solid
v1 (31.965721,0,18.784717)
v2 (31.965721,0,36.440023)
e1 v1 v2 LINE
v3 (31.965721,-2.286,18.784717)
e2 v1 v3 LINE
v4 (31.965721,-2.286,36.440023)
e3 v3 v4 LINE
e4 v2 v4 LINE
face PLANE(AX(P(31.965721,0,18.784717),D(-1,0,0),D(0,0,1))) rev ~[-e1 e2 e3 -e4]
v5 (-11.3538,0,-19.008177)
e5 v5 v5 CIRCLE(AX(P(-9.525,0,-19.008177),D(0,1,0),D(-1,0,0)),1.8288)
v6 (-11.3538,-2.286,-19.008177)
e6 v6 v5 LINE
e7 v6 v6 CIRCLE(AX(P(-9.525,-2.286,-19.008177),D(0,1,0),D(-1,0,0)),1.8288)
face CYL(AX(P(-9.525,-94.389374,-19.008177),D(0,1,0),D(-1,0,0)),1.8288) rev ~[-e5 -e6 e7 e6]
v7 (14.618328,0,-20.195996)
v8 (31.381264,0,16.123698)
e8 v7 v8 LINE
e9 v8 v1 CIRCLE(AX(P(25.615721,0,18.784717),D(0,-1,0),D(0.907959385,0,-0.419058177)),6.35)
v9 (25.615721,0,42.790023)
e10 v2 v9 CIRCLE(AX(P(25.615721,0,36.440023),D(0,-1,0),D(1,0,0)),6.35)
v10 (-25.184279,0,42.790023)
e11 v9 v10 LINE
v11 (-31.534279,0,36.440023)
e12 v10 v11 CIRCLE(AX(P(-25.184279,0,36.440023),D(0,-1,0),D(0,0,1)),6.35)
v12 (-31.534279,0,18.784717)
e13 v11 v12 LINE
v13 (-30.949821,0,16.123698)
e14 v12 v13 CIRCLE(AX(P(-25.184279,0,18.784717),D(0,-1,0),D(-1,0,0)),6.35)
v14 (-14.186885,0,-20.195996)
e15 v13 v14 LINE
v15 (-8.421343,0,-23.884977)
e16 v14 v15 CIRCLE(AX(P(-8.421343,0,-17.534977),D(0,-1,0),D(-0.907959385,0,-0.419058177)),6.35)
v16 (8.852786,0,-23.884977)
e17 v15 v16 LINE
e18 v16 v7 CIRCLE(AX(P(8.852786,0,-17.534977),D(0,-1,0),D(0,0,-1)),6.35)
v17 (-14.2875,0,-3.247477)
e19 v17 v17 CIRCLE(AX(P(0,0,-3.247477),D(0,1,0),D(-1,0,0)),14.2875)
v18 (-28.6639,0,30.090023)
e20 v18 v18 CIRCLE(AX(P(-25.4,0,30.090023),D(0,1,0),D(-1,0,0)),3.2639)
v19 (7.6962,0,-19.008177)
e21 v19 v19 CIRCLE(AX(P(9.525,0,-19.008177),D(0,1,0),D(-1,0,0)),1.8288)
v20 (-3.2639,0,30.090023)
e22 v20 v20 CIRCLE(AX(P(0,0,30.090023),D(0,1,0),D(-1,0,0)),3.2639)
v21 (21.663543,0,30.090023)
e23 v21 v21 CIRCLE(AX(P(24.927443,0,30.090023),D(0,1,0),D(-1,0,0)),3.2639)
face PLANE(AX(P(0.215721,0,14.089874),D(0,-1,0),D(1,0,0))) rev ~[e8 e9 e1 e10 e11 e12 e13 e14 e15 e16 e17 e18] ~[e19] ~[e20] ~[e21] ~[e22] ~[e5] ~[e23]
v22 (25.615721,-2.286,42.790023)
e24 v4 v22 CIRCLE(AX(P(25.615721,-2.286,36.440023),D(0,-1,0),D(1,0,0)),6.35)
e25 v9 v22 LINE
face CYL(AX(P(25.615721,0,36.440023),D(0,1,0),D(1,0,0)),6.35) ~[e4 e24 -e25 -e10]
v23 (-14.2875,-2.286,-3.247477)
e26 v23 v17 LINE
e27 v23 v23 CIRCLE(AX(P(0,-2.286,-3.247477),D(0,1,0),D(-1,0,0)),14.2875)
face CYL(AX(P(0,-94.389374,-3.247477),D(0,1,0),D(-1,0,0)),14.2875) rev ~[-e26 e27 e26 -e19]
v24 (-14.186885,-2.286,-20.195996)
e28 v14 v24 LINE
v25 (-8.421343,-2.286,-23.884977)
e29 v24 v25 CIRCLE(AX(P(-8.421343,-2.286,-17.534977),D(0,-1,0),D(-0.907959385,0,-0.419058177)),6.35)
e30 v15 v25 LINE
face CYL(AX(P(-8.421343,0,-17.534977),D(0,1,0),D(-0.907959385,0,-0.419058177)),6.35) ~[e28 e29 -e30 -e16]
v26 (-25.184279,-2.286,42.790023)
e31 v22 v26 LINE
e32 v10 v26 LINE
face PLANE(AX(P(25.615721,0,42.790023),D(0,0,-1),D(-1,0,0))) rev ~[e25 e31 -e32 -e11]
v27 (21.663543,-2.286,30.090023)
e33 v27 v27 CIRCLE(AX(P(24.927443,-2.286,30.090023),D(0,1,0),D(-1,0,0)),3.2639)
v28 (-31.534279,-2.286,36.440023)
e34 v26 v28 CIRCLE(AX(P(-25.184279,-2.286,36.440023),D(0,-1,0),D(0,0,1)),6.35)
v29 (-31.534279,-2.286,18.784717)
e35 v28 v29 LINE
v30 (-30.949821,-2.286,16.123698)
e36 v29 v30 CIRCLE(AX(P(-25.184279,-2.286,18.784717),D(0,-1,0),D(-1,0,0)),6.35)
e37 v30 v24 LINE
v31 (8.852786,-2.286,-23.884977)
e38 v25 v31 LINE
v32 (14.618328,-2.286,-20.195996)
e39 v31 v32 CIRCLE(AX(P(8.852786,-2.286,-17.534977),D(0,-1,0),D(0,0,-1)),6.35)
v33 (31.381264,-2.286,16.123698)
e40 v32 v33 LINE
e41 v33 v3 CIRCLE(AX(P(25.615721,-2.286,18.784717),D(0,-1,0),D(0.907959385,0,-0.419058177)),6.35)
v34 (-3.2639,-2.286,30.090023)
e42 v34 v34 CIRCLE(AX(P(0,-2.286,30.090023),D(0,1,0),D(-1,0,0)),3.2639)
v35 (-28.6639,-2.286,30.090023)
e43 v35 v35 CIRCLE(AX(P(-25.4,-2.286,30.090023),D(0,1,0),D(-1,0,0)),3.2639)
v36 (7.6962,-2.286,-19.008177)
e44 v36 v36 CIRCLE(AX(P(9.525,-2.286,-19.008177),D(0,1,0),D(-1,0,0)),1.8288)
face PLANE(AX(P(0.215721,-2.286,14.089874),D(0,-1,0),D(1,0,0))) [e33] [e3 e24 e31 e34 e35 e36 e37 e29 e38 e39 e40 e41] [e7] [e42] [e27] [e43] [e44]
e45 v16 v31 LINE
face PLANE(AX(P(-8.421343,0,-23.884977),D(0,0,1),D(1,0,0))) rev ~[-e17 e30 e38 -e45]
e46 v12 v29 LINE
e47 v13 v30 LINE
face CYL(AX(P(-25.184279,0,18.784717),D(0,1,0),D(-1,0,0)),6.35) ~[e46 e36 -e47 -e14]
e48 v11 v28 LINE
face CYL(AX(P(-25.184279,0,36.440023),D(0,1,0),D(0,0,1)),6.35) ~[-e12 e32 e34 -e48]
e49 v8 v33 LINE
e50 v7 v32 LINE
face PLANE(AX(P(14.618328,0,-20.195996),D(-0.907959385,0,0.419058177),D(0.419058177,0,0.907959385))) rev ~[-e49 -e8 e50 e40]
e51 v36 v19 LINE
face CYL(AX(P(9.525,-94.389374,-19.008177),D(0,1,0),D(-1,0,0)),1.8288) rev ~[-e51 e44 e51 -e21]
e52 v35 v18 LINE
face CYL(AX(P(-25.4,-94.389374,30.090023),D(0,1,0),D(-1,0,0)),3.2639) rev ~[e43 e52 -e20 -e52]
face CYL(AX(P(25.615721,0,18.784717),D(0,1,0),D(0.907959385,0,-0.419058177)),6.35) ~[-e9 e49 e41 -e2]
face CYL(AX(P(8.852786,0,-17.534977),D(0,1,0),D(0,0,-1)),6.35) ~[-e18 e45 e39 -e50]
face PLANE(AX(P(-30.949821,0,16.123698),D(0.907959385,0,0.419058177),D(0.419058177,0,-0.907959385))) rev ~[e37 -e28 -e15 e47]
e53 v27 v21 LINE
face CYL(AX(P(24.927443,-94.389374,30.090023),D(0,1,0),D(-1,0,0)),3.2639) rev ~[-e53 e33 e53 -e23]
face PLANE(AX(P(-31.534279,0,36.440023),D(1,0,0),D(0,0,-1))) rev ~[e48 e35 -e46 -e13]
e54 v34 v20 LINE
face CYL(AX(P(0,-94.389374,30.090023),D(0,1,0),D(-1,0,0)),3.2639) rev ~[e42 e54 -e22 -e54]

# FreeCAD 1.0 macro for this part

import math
import FreeCAD as App
import Part
import Sketcher
Q = App.Units.Quantity

doc = App.newDocument("Part")
body = doc.addObject("PartDesign::Body", "Body")

sketch1 = doc.addObject("Sketcher::SketchObject", "Sketch")
body.addObject(sketch1)
sketch1.AttachmentSupport = (doc.XZ_Plane, [""])
sketch1.MapMode = "FlatFace"
sketch1.addGeometry(Part.LineSegment(App.Vector(25.615721, 42.790023, 0), App.Vector(-25.184279, 42.790023, 0)), False)
sketch1.addGeometry(Part.ArcOfCircle(Part.Circle(App.Vector(-25.184279, 36.440023, 0), App.Vector(0, 0, 1), 6.35), math.radians(90), math.radians(180)), False)
sketch1.addGeometry(Part.LineSegment(App.Vector(-31.534279, 36.440023, 0), App.Vector(-31.534279, 18.784717, 0)), False)
sketch1.addGeometry(Part.ArcOfCircle(Part.Circle(App.Vector(-25.184279, 18.784717, 0), App.Vector(0, 0, 1), 6.35), math.radians(180), math.radians(204.775141)), False)
sketch1.addGeometry(Part.LineSegment(App.Vector(-30.949821, 16.123698, 0), App.Vector(-14.186885, -20.195996, 0)), False)
sketch1.addGeometry(Part.ArcOfCircle(Part.Circle(App.Vector(-8.421343, -17.534977, 0), App.Vector(0, 0, 1), 6.35), math.radians(-155.224859), math.radians(-90)), False)
sketch1.addGeometry(Part.LineSegment(App.Vector(-8.421343, -23.884977, 0), App.Vector(8.852786, -23.884977, 0)), False)
sketch1.addGeometry(Part.ArcOfCircle(Part.Circle(App.Vector(8.852786, -17.534977, 0), App.Vector(0, 0, 1), 6.35), math.radians(-90), math.radians(-24.775141)), False)
sketch1.addGeometry(Part.LineSegment(App.Vector(14.618328, -20.195996, 0), App.Vector(31.381264, 16.123698, 0)), False)
sketch1.addGeometry(Part.ArcOfCircle(Part.Circle(App.Vector(25.615721, 18.784717, 0), App.Vector(0, 0, 1), 6.35), math.radians(-24.775141), math.radians(0)), False)
sketch1.addGeometry(Part.LineSegment(App.Vector(31.965721, 18.784717, 0), App.Vector(31.965721, 36.440023, 0)), False)
sketch1.addGeometry(Part.ArcOfCircle(Part.Circle(App.Vector(25.615721, 36.440023, 0), App.Vector(0, 0, 1), 6.35), math.radians(0), math.radians(90)), False)
sketch1.addConstraint(Sketcher.Constraint("Tangent", 0, 2, 1, 1))
sketch1.addConstraint(Sketcher.Constraint("Tangent", 1, 2, 2, 1))
sketch1.addConstraint(Sketcher.Constraint("Tangent", 2, 2, 3, 1))
sketch1.addConstraint(Sketcher.Constraint("Tangent", 3, 2, 4, 1))
sketch1.addConstraint(Sketcher.Constraint("Tangent", 4, 2, 5, 1))
sketch1.addConstraint(Sketcher.Constraint("Tangent", 5, 2, 6, 1))
sketch1.addConstraint(Sketcher.Constraint("Tangent", 6, 2, 7, 1))
sketch1.addConstraint(Sketcher.Constraint("Tangent", 7, 2, 8, 1))
sketch1.addConstraint(Sketcher.Constraint("Tangent", 8, 2, 9, 1))
sketch1.addConstraint(Sketcher.Constraint("Tangent", 9, 2, 10, 1))
sketch1.addConstraint(Sketcher.Constraint("Tangent", 10, 2, 11, 1))
sketch1.addConstraint(Sketcher.Constraint("Tangent", 11, 2, 0, 1))
sketch1.addConstraint(Sketcher.Constraint("Horizontal", 0))
sketch1.addConstraint(Sketcher.Constraint("Vertical", 2))
sketch1.addConstraint(Sketcher.Constraint("Horizontal", 6))
sketch1.addConstraint(Sketcher.Constraint("Vertical", 10))
sketch1.addConstraint(Sketcher.Constraint("Equal", 1, 3))
sketch1.addConstraint(Sketcher.Constraint("Equal", 3, 5))
sketch1.addConstraint(Sketcher.Constraint("Equal", 5, 7))
sketch1.addConstraint(Sketcher.Constraint("Equal", 7, 9))
sketch1.addConstraint(Sketcher.Constraint("Equal", 9, 11))
sketch1.addConstraint(Sketcher.Constraint("Horizontal", 3, 3, 9, 3))
sketch1.addConstraint(Sketcher.Constraint("Horizontal", 4, 2, 7, 2))
sketch1.addConstraint(Sketcher.Constraint("DistanceX", 0, 2, 0, 1, Q("2 in")))
sketch1.addConstraint(Sketcher.Constraint("Radius", 1, Q("0.25 in")))
sketch1.addConstraint(Sketcher.Constraint("DistanceY", 5, 3, 1, 3, Q("2.125 in")))
sketch1.addConstraint(Sketcher.Constraint("DistanceX", 6, 1, 6, 2, 17.274129))
sketch1.addConstraint(Sketcher.Constraint("DistanceY", 2, 2, 2, 1, 17.655306))
sketch1.addConstraint(Sketcher.Constraint("DistanceX", 1, 3, -1, 1, 25.184279))
sketch1.addConstraint(Sketcher.Constraint("DistanceY", -1, 1, 1, 3, 36.440023))
pad1 = doc.addObject("PartDesign::Pad", "Pad")
body.addObject(pad1)
pad1.Profile = sketch1
pad1.Length = Q("0.09 in")

sketch2 = doc.addObject("Sketcher::SketchObject", "Sketch001")
body.addObject(sketch2)
sketch2.AttachmentSupport = (doc.XZ_Plane, [""])
sketch2.MapMode = "FlatFace"
sketch2.AttachmentOffset = App.Placement(App.Vector(0, 0, 0.09 * 25.4), App.Rotation())
sketch2.addGeometry(Part.Circle(App.Vector(-25.4, 30.090023, 0), App.Vector(0, 0, 1), 3.2639), False)
sketch2.addGeometry(Part.Circle(App.Vector(0, 30.090023, 0), App.Vector(0, 0, 1), 3.2639), False)
sketch2.addGeometry(Part.Circle(App.Vector(24.927443, 30.090023, 0), App.Vector(0, 0, 1), 3.2639), False)
sketch2.addConstraint(Sketcher.Constraint("Equal", 0, 1))
sketch2.addConstraint(Sketcher.Constraint("Equal", 1, 2))
sketch2.addConstraint(Sketcher.Constraint("PointOnObject", 1, 3, -2))
sketch2.addConstraint(Sketcher.Constraint("Horizontal", 0, 3, 1, 3))
sketch2.addConstraint(Sketcher.Constraint("Horizontal", 1, 3, 2, 3))
sketch2.addConstraint(Sketcher.Constraint("Diameter", 0, Q("0.257 in")))
sketch2.addConstraint(Sketcher.Constraint("DistanceX", 0, 3, -1, 1, Q("1 in")))
sketch2.addConstraint(Sketcher.Constraint("DistanceY", -1, 1, 0, 3, 30.090023))
sketch2.addConstraint(Sketcher.Constraint("DistanceX", -1, 1, 2, 3, 24.927443))
doc.recompute()
hole = doc.addObject("PartDesign::Hole", "Hole")
body.addObject(hole)
hole.Profile = sketch2
hole.ThreadType = "None"
hole.Diameter = Q("0.257 in")
hole.DepthType = "ThroughAll"

sketch3 = doc.addObject("Sketcher::SketchObject", "Sketch002")
body.addObject(sketch3)
sketch3.AttachmentSupport = (doc.XZ_Plane, [""])
sketch3.MapMode = "FlatFace"
sketch3.AttachmentOffset = App.Placement(App.Vector(0, 0, 0.09 * 25.4), App.Rotation())
sketch3.addGeometry(Part.Circle(App.Vector(0, -3.247477, 0), App.Vector(0, 0, 1), 14.2875), False)
sketch3.addConstraint(Sketcher.Constraint("PointOnObject", 0, 3, -2))
sketch3.addConstraint(Sketcher.Constraint("Diameter", 0, Q("1.125 in")))
sketch3.addConstraint(Sketcher.Constraint("DistanceY", 0, 3, -1, 1, 3.247477))
doc.recompute()
hole2 = doc.addObject("PartDesign::Hole", "Hole001")
body.addObject(hole2)
hole2.Profile = sketch3
hole2.ThreadType = "None"
hole2.Diameter = Q("1.125 in")
hole2.DepthType = "ThroughAll"

sketch4 = doc.addObject("Sketcher::SketchObject", "Sketch003")
body.addObject(sketch4)
sketch4.AttachmentSupport = (doc.XZ_Plane, [""])
sketch4.MapMode = "FlatFace"
sketch4.AttachmentOffset = App.Placement(App.Vector(0, 0, 0.09 * 25.4), App.Rotation())
sketch4.addGeometry(Part.Circle(App.Vector(-9.525, -19.008177, 0), App.Vector(0, 0, 1), 1.8288), False)
sketch4.addGeometry(Part.Circle(App.Vector(9.525, -19.008177, 0), App.Vector(0, 0, 1), 1.8288), False)
sketch4.addConstraint(Sketcher.Constraint("Equal", 0, 1))
sketch4.addConstraint(Sketcher.Constraint("Symmetric", 0, 3, 1, 3, -2))
sketch4.addConstraint(Sketcher.Constraint("Diameter", 0, Q("0.144 in")))
sketch4.addConstraint(Sketcher.Constraint("DistanceX", 0, 3, 1, 3, Q("0.75 in")))
sketch4.addConstraint(Sketcher.Constraint("DistanceY", 0, 3, -1, 1, 19.008177))
doc.recompute()
hole3 = doc.addObject("PartDesign::Hole", "Hole002")
body.addObject(hole3)
hole3.Profile = sketch4
hole3.ThreadType = "None"
hole3.Diameter = Q("0.144 in")
hole3.DepthType = "ThroughAll"

doc.recompute()
